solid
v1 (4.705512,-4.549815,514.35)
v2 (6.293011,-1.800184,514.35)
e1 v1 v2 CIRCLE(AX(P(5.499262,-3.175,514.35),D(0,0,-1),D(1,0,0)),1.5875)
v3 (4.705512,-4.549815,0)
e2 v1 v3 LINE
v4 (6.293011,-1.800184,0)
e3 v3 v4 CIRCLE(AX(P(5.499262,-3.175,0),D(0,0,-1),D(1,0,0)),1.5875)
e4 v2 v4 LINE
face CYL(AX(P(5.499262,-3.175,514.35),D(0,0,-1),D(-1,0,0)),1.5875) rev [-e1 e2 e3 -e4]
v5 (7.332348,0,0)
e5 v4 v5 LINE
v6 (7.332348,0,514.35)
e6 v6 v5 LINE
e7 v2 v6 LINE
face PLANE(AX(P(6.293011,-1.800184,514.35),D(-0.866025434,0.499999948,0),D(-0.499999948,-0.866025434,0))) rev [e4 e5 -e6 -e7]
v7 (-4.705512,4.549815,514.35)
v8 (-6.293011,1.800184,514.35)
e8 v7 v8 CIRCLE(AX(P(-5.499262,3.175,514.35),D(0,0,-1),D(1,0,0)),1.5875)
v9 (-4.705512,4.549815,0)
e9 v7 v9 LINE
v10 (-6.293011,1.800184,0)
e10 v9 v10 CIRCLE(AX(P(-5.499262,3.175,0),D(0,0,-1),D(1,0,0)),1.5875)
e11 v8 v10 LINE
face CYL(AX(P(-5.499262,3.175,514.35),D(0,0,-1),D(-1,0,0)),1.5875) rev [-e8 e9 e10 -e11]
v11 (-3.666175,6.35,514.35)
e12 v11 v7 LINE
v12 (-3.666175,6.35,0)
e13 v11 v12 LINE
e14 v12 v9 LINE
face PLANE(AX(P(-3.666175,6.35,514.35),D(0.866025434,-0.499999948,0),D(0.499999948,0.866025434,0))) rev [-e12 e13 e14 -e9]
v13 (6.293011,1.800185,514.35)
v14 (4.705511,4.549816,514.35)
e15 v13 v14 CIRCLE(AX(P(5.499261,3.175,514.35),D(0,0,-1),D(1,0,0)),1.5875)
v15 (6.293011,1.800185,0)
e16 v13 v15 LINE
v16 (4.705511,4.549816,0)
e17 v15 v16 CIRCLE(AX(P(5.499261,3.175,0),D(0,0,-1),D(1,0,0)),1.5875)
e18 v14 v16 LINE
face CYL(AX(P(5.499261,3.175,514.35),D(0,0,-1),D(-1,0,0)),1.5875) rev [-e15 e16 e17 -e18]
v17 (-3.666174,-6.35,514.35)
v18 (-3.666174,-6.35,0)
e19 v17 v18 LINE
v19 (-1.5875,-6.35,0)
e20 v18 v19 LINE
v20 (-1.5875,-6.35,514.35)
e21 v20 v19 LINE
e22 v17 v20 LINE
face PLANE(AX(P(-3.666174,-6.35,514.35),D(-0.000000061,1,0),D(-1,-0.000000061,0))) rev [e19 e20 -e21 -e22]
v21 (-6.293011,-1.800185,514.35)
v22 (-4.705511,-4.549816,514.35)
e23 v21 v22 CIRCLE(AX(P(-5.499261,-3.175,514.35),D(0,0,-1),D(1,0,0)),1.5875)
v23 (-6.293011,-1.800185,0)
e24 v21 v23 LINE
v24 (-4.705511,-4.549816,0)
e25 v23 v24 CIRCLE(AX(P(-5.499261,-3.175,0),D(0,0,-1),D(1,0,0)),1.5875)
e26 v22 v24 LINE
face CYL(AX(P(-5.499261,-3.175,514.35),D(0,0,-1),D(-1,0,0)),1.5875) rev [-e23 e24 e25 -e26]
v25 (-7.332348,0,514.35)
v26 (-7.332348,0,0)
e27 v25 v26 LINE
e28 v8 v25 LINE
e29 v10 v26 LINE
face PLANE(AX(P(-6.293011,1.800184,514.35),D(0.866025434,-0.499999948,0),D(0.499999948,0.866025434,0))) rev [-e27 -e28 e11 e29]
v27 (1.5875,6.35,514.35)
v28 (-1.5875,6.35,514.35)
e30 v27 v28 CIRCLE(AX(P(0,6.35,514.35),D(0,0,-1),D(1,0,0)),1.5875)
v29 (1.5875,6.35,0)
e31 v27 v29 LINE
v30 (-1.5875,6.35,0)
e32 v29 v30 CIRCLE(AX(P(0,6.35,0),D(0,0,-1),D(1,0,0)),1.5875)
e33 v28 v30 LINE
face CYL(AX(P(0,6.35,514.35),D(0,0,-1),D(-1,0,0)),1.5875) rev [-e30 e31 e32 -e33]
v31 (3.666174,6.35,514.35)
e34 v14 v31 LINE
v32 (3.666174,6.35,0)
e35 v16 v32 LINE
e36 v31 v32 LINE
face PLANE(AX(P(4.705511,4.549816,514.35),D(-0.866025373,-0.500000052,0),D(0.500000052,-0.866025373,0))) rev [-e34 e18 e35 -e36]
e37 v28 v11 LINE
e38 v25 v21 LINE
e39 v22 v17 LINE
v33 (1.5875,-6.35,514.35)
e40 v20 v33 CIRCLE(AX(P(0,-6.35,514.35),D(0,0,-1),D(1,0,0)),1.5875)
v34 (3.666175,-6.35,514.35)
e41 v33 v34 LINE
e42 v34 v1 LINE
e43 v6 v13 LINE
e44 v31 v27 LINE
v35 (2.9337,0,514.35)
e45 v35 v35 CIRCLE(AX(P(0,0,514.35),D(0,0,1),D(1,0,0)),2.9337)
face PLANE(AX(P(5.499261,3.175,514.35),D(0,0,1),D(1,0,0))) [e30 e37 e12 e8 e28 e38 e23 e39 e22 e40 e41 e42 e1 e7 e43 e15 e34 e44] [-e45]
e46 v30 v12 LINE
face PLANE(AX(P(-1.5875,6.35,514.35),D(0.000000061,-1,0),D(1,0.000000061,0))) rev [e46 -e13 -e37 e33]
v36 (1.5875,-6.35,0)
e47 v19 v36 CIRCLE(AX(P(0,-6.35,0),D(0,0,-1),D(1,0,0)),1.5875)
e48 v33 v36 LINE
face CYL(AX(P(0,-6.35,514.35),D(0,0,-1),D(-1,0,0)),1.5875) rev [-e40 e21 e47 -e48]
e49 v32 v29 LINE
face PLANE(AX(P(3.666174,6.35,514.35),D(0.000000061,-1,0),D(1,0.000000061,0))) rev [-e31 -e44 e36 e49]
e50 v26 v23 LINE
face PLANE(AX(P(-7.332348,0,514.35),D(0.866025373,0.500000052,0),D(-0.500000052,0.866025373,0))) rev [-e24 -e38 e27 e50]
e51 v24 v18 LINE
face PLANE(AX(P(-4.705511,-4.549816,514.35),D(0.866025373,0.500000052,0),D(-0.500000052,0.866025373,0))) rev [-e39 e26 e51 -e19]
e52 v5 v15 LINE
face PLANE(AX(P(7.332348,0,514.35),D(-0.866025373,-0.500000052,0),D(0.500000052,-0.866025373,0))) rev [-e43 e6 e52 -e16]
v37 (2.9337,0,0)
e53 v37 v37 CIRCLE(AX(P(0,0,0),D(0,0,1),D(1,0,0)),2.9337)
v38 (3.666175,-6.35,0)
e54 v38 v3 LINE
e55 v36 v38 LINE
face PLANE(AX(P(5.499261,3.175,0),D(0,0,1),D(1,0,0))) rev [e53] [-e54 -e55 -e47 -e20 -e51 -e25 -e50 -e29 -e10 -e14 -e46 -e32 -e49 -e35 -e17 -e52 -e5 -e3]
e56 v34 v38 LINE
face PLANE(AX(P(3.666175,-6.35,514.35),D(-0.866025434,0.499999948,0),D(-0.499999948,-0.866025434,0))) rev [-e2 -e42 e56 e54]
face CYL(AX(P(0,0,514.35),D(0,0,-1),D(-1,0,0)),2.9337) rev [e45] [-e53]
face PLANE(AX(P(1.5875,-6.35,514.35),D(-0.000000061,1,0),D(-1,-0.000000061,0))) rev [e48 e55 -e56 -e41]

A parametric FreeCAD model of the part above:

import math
import FreeCAD as App
import Part
import Sketcher
from FreeCAD import Vector
Q = App.Units.Quantity

doc = App.newDocument("Part")
body = doc.addObject("PartDesign::Body", "Body")

sketch1 = body.newObject("Sketcher::SketchObject", "Sketch")
sketch1.AttachmentSupport = (doc.getObject("XY_Plane"), [""])
sketch1.MapMode = "FlatFace"
sketch1.addGeometry([
    Part.LineSegment(Vector(-1.5875, 6.35, 0), Vector(-3.666175, 6.35, 0)),
    Part.LineSegment(Vector(-3.666175, 6.35, 0), Vector(-4.705512, 4.549815, 0)),
    Part.ArcOfCircle(Part.Circle(Vector(-5.499262, 3.175, 0), Vector(0, 0, 1), 1.5875), math.radians(-119.999997), math.radians(60.000004)),
    Part.LineSegment(Vector(-6.293011, 1.800184, 0), Vector(-7.332348, 0, 0)),
    Part.LineSegment(Vector(-7.332348, 0, 0), Vector(-6.293011, -1.800185, 0)),
    Part.ArcOfCircle(Part.Circle(Vector(-5.499261, -3.175, 0), Vector(0, 0, 1), 1.5875), math.radians(-59.999997), math.radians(120.000004)),
    Part.LineSegment(Vector(-4.705511, -4.549816, 0), Vector(-3.666174, -6.35, 0)),
    Part.LineSegment(Vector(-3.666174, -6.35, 0), Vector(-1.5875, -6.35, 0)),
    Part.ArcOfCircle(Part.Circle(Vector(0, -6.35, 0), Vector(0, 0, 1), 1.5875), math.radians(0.000003), math.radians(180.000003)),
    Part.LineSegment(Vector(1.5875, -6.35, 0), Vector(3.666175, -6.35, 0)),
    Part.LineSegment(Vector(3.666175, -6.35, 0), Vector(4.705512, -4.549815, 0)),
    Part.ArcOfCircle(Part.Circle(Vector(5.499262, -3.175, 0), Vector(0, 0, 1), 1.5875), math.radians(60.000003), math.radians(240.000004)),
    Part.LineSegment(Vector(6.293011, -1.800184, 0), Vector(7.332348, 0, 0)),
    Part.LineSegment(Vector(7.332348, 0, 0), Vector(6.293011, 1.800185, 0)),
    Part.ArcOfCircle(Part.Circle(Vector(5.499261, 3.175, 0), Vector(0, 0, 1), 1.5875), math.radians(120.000003), math.radians(300.000004)),
    Part.LineSegment(Vector(4.705511, 4.549816, 0), Vector(3.666174, 6.35, 0)),
    Part.LineSegment(Vector(3.666174, 6.35, 0), Vector(1.5875, 6.35, 0)),
    Part.ArcOfCircle(Part.Circle(Vector(0, 6.35, 0), Vector(0, 0, 1), 1.5875), math.radians(-179.999997), math.radians(0.000003)),
    Part.Circle(Vector(0, 0, 0), Vector(0, 0, 1), 2.9337),
], False)
sketch1.addConstraint([
    Sketcher.Constraint("Coincident", 0, 2, 1, 1),
    Sketcher.Constraint("Coincident", 1, 2, 2, 2),
    Sketcher.Constraint("Coincident", 2, 1, 3, 1),
    Sketcher.Constraint("Coincident", 3, 2, 4, 1),
    Sketcher.Constraint("Coincident", 4, 2, 5, 2),
    Sketcher.Constraint("Coincident", 5, 1, 6, 1),
    Sketcher.Constraint("Coincident", 6, 2, 7, 1),
    Sketcher.Constraint("Coincident", 7, 2, 8, 2),
    Sketcher.Constraint("Coincident", 8, 1, 9, 1),
    Sketcher.Constraint("Coincident", 9, 2, 10, 1),
    Sketcher.Constraint("Coincident", 10, 2, 11, 2),
    Sketcher.Constraint("Coincident", 11, 1, 12, 1),
    Sketcher.Constraint("Coincident", 12, 2, 13, 1),
    Sketcher.Constraint("Coincident", 13, 2, 14, 2),
    Sketcher.Constraint("Coincident", 14, 1, 15, 1),
    Sketcher.Constraint("Coincident", 15, 2, 16, 1),
    Sketcher.Constraint("Coincident", 16, 2, 17, 2),
    Sketcher.Constraint("Coincident", 17, 1, 0, 1),
    Sketcher.Constraint("Horizontal", 0),
    Sketcher.Constraint("Horizontal", 7),
    Sketcher.Constraint("Horizontal", 9),
    Sketcher.Constraint("Horizontal", 16),
    Sketcher.Constraint("Coincident", 18, 3, -1, 1),
    Sketcher.Constraint("Equal", 2, 5),
    Sketcher.Constraint("Equal", 5, 8),
    Sketcher.Constraint("Equal", 8, 11),
    Sketcher.Constraint("Equal", 11, 14),
    Sketcher.Constraint("Equal", 14, 17),
    Sketcher.Constraint("Symmetric", 2, 3, 11, 3, -1, 1),
    Sketcher.Constraint("Symmetric", 5, 3, 14, 3, -1, 1),
    Sketcher.Constraint("Symmetric", 8, 3, 17, 3, -1, 1),
    Sketcher.Constraint("Symmetric", 0, 2, 9, 2, -1, 1),
    Sketcher.Constraint("Symmetric", 3, 2, 12, 2, -1, 1),
    Sketcher.Constraint("Symmetric", 6, 2, 15, 2, -1, 1),
    Sketcher.Constraint("Symmetric", 5, 3, 11, 3, -2),
    Sketcher.Constraint("Symmetric", 7, 2, 8, 1, -2),
    Sketcher.Constraint("PointOnObject", 3, 2, -1),
    Sketcher.Constraint("Parallel", 1, 3),
    Sketcher.Constraint("Parallel", 4, 6),
    Sketcher.Constraint("Parallel", 3, 10),
    Sketcher.Constraint("Parallel", 10, 12),
    Sketcher.Constraint("Parallel", 6, 13),
    Sketcher.Constraint("Parallel", 13, 15),
    Sketcher.Constraint("Horizontal", 17, 3, 0, 2),
    Sketcher.Constraint("Horizontal", 5, 1, 10, 2),
    Sketcher.Constraint("Horizontal", 4, 2, 11, 1),
    Sketcher.Constraint("Equal", 1, 3),
    Sketcher.Constraint("Diameter", 18, Q("0.231 in")),
    Sketcher.Constraint("Angle", 1, Q("-119.999997 deg")),
    Sketcher.Constraint("Radius", 2, Q("0.0625 in")),
    Sketcher.Constraint("DistanceY", 8, 3, 17, 3, Q("0.5 in")),
    Sketcher.Constraint("DistanceY", 5, 3, 2, 3, Q("0.25 in")),
    Sketcher.Constraint("DistanceX", 2, 3, 1, 2, Q("0.03125 in")),
    Sketcher.Constraint("DistanceX", 0, 2, 0, 1, Q("2.078674 mm")),
])
pad1 = body.newObject("PartDesign::Pad", "Pad")
pad1.Profile = sketch1
pad1.Length = Q("20.25 in")

doc.recompute()
